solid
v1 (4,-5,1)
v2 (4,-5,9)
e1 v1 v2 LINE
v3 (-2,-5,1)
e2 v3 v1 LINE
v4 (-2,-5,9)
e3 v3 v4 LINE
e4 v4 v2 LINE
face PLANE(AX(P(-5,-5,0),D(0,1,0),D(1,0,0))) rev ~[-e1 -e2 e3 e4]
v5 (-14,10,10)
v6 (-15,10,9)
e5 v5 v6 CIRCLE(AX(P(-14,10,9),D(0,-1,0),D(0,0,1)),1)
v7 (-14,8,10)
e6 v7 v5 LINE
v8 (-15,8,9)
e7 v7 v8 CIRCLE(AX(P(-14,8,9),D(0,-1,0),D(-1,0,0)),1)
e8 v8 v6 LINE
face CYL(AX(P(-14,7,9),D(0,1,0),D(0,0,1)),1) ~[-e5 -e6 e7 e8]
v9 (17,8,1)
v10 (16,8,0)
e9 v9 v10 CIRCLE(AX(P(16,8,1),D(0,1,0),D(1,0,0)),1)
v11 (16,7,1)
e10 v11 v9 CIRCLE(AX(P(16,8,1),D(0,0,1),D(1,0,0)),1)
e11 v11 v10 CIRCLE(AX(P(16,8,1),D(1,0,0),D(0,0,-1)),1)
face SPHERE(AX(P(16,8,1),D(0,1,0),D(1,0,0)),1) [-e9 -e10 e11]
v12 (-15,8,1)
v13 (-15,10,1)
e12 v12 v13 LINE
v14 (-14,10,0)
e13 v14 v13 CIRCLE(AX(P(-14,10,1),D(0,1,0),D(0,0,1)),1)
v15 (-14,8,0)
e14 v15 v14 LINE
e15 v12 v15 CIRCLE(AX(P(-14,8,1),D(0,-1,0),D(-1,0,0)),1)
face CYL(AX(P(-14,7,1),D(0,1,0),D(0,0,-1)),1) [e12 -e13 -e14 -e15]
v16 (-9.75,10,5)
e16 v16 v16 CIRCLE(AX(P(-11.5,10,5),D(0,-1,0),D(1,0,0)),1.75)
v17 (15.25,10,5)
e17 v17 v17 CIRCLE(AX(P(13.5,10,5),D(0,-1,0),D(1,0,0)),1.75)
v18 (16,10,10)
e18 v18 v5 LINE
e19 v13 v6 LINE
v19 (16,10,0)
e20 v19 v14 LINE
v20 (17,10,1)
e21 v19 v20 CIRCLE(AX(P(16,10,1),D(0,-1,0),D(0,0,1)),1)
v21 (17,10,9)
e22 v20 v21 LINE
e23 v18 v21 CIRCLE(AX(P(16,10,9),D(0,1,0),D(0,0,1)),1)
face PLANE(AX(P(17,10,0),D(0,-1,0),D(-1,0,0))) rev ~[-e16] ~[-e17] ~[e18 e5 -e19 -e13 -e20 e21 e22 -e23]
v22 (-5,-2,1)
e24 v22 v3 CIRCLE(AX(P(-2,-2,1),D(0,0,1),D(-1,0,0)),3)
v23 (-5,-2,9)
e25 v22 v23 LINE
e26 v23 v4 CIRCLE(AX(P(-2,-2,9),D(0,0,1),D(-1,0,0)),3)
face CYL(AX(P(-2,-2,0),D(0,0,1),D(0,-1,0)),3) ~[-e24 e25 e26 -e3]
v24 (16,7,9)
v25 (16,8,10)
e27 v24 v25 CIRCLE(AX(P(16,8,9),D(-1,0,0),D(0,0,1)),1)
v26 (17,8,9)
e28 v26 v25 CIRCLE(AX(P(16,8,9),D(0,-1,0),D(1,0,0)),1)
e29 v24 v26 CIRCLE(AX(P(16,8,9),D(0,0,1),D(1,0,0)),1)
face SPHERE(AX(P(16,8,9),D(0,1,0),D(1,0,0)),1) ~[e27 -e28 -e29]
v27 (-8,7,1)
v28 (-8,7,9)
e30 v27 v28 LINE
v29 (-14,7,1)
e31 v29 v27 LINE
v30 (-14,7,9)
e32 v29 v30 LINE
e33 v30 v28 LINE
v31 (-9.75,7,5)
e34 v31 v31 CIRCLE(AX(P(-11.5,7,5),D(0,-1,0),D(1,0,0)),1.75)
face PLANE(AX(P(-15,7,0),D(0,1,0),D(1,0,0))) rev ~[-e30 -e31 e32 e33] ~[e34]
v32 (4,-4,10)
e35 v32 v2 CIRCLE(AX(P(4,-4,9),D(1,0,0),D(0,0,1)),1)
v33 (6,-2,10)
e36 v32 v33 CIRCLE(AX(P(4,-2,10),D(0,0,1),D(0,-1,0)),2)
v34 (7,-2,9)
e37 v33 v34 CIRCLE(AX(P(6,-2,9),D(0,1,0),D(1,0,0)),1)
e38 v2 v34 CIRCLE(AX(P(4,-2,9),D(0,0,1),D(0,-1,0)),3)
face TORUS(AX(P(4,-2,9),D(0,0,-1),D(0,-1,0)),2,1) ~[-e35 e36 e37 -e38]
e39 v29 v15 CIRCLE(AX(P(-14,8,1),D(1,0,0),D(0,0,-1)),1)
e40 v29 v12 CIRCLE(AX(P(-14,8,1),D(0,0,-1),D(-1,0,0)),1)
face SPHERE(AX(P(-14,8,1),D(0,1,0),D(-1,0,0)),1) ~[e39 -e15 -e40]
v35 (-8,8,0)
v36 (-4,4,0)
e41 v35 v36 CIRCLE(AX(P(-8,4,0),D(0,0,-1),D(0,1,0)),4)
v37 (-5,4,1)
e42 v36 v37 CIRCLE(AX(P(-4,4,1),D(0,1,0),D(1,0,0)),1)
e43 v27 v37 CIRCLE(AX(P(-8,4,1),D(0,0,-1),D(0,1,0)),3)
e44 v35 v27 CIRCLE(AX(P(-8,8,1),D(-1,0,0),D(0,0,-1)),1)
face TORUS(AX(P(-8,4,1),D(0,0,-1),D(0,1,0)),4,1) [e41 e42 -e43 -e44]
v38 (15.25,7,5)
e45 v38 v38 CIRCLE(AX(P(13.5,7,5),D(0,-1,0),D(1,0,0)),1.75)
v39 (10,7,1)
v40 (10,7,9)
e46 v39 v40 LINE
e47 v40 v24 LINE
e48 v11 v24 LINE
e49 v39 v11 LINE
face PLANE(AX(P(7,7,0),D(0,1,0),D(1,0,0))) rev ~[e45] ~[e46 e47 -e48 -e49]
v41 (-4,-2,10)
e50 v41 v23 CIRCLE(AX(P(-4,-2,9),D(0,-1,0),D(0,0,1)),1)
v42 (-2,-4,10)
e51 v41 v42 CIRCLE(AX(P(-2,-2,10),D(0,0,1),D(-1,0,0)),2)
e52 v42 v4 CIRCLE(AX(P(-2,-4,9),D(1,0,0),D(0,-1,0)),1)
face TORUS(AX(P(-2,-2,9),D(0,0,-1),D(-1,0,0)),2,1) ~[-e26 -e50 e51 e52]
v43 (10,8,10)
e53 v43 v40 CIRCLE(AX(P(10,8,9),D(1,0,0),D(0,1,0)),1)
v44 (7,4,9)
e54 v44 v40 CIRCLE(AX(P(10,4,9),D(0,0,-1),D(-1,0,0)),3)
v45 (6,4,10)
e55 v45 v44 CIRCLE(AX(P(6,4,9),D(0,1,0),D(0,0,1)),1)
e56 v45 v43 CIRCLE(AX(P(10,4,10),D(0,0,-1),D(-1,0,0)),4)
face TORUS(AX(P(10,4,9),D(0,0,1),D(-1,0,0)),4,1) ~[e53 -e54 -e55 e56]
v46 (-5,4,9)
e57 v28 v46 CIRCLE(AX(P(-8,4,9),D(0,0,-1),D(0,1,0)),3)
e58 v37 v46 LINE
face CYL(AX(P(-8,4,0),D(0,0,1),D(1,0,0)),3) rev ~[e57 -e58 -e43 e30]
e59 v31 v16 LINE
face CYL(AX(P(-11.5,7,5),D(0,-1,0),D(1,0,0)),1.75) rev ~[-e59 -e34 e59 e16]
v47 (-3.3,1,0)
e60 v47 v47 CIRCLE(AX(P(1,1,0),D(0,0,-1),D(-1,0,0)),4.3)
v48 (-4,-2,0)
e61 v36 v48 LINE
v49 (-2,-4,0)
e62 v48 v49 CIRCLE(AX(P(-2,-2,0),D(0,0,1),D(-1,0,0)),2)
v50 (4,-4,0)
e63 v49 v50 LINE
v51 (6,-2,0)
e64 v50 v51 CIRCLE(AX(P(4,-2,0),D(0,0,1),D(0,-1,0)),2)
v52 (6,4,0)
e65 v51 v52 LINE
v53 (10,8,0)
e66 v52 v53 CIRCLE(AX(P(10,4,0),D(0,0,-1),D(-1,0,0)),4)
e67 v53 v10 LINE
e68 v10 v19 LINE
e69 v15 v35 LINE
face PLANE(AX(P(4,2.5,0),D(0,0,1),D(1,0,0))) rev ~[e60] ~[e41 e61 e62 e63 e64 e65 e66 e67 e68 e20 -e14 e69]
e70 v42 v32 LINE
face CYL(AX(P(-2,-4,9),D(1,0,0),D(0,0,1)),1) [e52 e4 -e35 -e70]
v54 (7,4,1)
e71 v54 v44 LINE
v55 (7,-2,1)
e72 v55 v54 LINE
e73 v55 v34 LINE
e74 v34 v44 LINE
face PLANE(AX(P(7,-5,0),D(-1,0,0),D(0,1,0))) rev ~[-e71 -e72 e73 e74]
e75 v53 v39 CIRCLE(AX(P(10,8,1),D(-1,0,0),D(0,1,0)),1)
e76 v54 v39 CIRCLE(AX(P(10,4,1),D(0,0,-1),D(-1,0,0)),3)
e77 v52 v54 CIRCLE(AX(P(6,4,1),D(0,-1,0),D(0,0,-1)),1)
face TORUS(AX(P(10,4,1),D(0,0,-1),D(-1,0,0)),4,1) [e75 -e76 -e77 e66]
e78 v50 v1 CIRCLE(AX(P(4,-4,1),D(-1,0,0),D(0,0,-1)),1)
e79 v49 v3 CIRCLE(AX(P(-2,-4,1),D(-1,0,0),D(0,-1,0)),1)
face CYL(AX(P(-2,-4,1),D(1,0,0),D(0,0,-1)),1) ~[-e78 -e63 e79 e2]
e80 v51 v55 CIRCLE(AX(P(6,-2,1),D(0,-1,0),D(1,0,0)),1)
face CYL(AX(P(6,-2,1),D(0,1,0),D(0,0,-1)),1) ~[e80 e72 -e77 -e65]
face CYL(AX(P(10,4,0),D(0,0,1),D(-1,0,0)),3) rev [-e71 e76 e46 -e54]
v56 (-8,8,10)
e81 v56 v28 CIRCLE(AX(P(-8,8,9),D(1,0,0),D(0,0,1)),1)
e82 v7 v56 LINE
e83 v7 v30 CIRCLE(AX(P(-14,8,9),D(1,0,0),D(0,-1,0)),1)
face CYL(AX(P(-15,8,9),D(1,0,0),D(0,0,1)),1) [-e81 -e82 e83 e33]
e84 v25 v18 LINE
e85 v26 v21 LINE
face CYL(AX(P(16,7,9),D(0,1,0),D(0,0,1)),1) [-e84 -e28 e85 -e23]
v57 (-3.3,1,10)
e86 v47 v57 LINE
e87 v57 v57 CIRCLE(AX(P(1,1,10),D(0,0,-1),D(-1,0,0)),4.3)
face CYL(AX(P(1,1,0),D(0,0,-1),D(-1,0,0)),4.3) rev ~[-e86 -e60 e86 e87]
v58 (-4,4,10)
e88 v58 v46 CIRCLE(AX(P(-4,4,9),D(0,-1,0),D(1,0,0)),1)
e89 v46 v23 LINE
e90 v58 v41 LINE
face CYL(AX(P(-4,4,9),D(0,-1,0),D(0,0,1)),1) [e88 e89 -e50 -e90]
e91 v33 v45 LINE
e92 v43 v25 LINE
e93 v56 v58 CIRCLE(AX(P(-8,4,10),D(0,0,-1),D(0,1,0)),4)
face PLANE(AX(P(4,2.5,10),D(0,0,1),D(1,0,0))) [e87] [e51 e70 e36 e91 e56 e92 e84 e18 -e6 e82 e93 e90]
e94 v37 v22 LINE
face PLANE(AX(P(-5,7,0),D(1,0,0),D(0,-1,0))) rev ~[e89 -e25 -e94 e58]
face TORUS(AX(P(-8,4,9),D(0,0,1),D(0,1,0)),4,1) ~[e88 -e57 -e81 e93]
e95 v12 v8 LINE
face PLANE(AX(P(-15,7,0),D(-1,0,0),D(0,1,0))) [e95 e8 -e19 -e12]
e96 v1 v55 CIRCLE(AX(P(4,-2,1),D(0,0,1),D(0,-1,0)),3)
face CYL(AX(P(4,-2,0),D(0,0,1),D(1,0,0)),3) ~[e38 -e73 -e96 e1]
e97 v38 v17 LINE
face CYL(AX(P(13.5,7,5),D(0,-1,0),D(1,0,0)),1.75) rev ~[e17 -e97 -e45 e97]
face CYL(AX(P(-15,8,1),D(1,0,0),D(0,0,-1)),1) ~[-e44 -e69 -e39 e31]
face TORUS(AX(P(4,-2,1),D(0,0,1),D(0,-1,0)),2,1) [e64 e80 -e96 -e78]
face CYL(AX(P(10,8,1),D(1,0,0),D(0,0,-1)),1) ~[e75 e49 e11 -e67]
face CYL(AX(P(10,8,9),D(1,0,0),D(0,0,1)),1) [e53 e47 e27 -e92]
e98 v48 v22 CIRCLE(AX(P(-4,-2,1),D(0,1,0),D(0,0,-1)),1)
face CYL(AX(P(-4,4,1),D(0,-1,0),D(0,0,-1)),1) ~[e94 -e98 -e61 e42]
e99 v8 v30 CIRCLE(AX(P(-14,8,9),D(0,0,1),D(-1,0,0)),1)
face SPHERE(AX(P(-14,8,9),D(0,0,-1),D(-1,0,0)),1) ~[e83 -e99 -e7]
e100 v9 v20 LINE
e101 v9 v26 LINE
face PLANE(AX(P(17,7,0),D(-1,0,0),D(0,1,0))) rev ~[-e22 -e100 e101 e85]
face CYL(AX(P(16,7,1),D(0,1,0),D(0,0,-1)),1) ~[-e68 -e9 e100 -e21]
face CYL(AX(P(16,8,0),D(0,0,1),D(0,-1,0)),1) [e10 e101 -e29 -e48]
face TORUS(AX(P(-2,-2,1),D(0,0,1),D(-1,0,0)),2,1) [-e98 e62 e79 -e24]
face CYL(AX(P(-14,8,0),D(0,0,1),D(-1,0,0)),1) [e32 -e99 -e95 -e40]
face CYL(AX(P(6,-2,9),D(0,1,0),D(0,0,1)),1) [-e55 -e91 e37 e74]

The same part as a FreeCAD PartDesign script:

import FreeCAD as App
import Part
import Sketcher

V = App.Vector


def edges_at(feature, points):
    """Names of the edges that pass closest to the given points."""
    edges = feature.Shape.Edges
    near = lambda p: min(range(len(edges)), key=lambda i: edges[i].distToShape(Part.Vertex(*p))[0])
    return sorted({f"Edge{near(p) + 1}" for p in points})

doc = App.newDocument("Part")
body = doc.addObject("PartDesign::Body", "Body")

# Sketch on XY plane
sketch1 = doc.addObject("Sketcher::SketchObject", "Sketch")
body.addObject(sketch1)
sketch1.AttachmentSupport = (doc.XY_Plane, [""])
sketch1.MapMode = "FlatFace"
sketch1.addGeometry([
    Part.LineSegment(V(7, -5, 0), V(7, 7, 0)),  # 0
    Part.LineSegment(V(7, 7, 0), V(17, 7, 0)),  # 1
    Part.LineSegment(V(17, 7, 0), V(17, 10, 0)),  # 2
    Part.LineSegment(V(17, 10, 0), V(-15, 10, 0)),  # 3
    Part.LineSegment(V(-15, 10, 0), V(-15, 7, 0)),  # 4
    Part.LineSegment(V(-15, 7, 0), V(-5, 7, 0)),  # 5
    Part.LineSegment(V(-5, 7, 0), V(-5, -5, 0)),  # 6
    Part.LineSegment(V(-5, -5, 0), V(7, -5, 0)),  # 7
], False)
sketch1.addConstraint([
    Sketcher.Constraint("Coincident", 0, 2, 1, 1),
    Sketcher.Constraint("Coincident", 1, 2, 2, 1),
    Sketcher.Constraint("Coincident", 2, 2, 3, 1),
    Sketcher.Constraint("Coincident", 3, 2, 4, 1),
    Sketcher.Constraint("Coincident", 4, 2, 5, 1),
    Sketcher.Constraint("Coincident", 5, 2, 6, 1),
    Sketcher.Constraint("Coincident", 6, 2, 7, 1),
    Sketcher.Constraint("Coincident", 7, 2, 0, 1),
    Sketcher.Constraint("Vertical", 0),
    Sketcher.Constraint("Horizontal", 1),
    Sketcher.Constraint("Vertical", 2),
    Sketcher.Constraint("Horizontal", 3),
    Sketcher.Constraint("Vertical", 4),
    Sketcher.Constraint("Horizontal", 5),
    Sketcher.Constraint("Vertical", 6),
    Sketcher.Constraint("Horizontal", 7),
    Sketcher.Constraint("Horizontal", 1, 2, 4, 2),
    Sketcher.Constraint("Equal", 1, 5),
    Sketcher.Constraint("Equal", 7, 0),
    Sketcher.Constraint("DistanceX", 1, 1, 1, 2, 10.0),
    Sketcher.Constraint("DistanceX", 3, 2, 3, 1, 32.0),
    Sketcher.Constraint("DistanceY", 2, 1, 2, 2, 3.0),
    Sketcher.Constraint("DistanceX", -1, 1, 0, 2, 7.0),
    Sketcher.Constraint("DistanceY", -1, 1, 0, 2, 7.0),
])
pad1 = doc.addObject("PartDesign::Pad", "Pad")
body.addObject(pad1)
pad1.Profile = sketch1
pad1.Length = 10

# Sketch on XY plane
sketch2 = doc.addObject("Sketcher::SketchObject", "Sketch001")
body.addObject(sketch2)
sketch2.AttachmentSupport = (doc.XY_Plane, [""])
sketch2.MapMode = "FlatFace"
sketch2.addGeometry(Part.Circle(V(1, 1, 0), V(0, 0, 1), 4.3), False)
sketch2.addConstraint([
    Sketcher.Constraint("Diameter", 0, 8.6),
    Sketcher.Constraint("DistanceX", -1, 1, 0, 3, 1.0),
    Sketcher.Constraint("DistanceY", -1, 1, 0, 3, 1.0),
])
pocket1 = doc.addObject("PartDesign::Pocket", "Pocket")
body.addObject(pocket1)
pocket1.Profile = sketch2
pocket1.Type = "ThroughAll"
pocket1.Reversed = True

# Sketch on XZ plane
sketch3 = doc.addObject("Sketcher::SketchObject", "Sketch002")
body.addObject(sketch3)
sketch3.AttachmentSupport = (doc.XZ_Plane, [""])
sketch3.MapMode = "FlatFace"
sketch3.AttachmentOffset = App.Placement(V(0, 0, -7), App.Rotation())
sketch3.addGeometry([
    Part.Circle(V(-11.5, 5, 0), V(0, 0, 1), 1.8),
    Part.Circle(V(13.5, 5, 0), V(0, 0, 1), 1.8),
], False)
sketch3.addConstraint([
    Sketcher.Constraint("Equal", 0, 1),
    Sketcher.Constraint("Horizontal", 0, 3, 1, 3),
    Sketcher.Constraint("Diameter", 0, 3.5),
    Sketcher.Constraint("DistanceY", -1, 1, 0, 3, 5.0),
    Sketcher.Constraint("DistanceX", 0, 3, 1, 3, 25.0),
    Sketcher.Constraint("DistanceX", 0, 3, -1, 1, 11.5),
])
pocket2 = doc.addObject("PartDesign::Pocket", "Pocket001")
body.addObject(pocket2)
pocket2.Profile = sketch3
pocket2.Type = "ThroughAll"
doc.recompute()

fillet = doc.addObject("PartDesign::Fillet", "Fillet")
body.addObject(fillet)
fillet.Base = (pocket2, edges_at(pocket2, [
    (7, -5, 5),
    (-5, -5, 5),
    (-5, 7, 5),
    (7, 7, 5),
]))
fillet.Radius = 3
doc.recompute()

fillet2 = doc.addObject("PartDesign::Fillet", "Fillet001")
body.addObject(fillet2)
fillet2.Base = (fillet, edges_at(fillet, [
    (-15, 8.5, 0),
    (17, 8.5, 0),
    (17, 8.5, 10),
    (-15, 7, 5),
    (17, 7, 5),
    (-15, 8.5, 10),
    (-5, 1, 0),
    (-5, 1, 10),
    (-11.5, 7, 0),
    (-11.5, 7, 10),
    (13.5, 7, 0),
    (13.5, 7, 10),
    (7, 1, 0),
    (7, 1, 10),
    (1, -5, 0),
    (1, -5, 10),
    (6.121, -4.121, 0),
    (-4.121, -4.121, 0),
    (6.121, -4.121, 10),
    (-4.121, -4.121, 10),
    (-5.879, 6.121, 0),
    (-5.879, 6.121, 10),
    (7.879, 6.121, 0),
    (7.879, 6.121, 10),
]))
fillet2.Radius = 1

doc.recompute()
